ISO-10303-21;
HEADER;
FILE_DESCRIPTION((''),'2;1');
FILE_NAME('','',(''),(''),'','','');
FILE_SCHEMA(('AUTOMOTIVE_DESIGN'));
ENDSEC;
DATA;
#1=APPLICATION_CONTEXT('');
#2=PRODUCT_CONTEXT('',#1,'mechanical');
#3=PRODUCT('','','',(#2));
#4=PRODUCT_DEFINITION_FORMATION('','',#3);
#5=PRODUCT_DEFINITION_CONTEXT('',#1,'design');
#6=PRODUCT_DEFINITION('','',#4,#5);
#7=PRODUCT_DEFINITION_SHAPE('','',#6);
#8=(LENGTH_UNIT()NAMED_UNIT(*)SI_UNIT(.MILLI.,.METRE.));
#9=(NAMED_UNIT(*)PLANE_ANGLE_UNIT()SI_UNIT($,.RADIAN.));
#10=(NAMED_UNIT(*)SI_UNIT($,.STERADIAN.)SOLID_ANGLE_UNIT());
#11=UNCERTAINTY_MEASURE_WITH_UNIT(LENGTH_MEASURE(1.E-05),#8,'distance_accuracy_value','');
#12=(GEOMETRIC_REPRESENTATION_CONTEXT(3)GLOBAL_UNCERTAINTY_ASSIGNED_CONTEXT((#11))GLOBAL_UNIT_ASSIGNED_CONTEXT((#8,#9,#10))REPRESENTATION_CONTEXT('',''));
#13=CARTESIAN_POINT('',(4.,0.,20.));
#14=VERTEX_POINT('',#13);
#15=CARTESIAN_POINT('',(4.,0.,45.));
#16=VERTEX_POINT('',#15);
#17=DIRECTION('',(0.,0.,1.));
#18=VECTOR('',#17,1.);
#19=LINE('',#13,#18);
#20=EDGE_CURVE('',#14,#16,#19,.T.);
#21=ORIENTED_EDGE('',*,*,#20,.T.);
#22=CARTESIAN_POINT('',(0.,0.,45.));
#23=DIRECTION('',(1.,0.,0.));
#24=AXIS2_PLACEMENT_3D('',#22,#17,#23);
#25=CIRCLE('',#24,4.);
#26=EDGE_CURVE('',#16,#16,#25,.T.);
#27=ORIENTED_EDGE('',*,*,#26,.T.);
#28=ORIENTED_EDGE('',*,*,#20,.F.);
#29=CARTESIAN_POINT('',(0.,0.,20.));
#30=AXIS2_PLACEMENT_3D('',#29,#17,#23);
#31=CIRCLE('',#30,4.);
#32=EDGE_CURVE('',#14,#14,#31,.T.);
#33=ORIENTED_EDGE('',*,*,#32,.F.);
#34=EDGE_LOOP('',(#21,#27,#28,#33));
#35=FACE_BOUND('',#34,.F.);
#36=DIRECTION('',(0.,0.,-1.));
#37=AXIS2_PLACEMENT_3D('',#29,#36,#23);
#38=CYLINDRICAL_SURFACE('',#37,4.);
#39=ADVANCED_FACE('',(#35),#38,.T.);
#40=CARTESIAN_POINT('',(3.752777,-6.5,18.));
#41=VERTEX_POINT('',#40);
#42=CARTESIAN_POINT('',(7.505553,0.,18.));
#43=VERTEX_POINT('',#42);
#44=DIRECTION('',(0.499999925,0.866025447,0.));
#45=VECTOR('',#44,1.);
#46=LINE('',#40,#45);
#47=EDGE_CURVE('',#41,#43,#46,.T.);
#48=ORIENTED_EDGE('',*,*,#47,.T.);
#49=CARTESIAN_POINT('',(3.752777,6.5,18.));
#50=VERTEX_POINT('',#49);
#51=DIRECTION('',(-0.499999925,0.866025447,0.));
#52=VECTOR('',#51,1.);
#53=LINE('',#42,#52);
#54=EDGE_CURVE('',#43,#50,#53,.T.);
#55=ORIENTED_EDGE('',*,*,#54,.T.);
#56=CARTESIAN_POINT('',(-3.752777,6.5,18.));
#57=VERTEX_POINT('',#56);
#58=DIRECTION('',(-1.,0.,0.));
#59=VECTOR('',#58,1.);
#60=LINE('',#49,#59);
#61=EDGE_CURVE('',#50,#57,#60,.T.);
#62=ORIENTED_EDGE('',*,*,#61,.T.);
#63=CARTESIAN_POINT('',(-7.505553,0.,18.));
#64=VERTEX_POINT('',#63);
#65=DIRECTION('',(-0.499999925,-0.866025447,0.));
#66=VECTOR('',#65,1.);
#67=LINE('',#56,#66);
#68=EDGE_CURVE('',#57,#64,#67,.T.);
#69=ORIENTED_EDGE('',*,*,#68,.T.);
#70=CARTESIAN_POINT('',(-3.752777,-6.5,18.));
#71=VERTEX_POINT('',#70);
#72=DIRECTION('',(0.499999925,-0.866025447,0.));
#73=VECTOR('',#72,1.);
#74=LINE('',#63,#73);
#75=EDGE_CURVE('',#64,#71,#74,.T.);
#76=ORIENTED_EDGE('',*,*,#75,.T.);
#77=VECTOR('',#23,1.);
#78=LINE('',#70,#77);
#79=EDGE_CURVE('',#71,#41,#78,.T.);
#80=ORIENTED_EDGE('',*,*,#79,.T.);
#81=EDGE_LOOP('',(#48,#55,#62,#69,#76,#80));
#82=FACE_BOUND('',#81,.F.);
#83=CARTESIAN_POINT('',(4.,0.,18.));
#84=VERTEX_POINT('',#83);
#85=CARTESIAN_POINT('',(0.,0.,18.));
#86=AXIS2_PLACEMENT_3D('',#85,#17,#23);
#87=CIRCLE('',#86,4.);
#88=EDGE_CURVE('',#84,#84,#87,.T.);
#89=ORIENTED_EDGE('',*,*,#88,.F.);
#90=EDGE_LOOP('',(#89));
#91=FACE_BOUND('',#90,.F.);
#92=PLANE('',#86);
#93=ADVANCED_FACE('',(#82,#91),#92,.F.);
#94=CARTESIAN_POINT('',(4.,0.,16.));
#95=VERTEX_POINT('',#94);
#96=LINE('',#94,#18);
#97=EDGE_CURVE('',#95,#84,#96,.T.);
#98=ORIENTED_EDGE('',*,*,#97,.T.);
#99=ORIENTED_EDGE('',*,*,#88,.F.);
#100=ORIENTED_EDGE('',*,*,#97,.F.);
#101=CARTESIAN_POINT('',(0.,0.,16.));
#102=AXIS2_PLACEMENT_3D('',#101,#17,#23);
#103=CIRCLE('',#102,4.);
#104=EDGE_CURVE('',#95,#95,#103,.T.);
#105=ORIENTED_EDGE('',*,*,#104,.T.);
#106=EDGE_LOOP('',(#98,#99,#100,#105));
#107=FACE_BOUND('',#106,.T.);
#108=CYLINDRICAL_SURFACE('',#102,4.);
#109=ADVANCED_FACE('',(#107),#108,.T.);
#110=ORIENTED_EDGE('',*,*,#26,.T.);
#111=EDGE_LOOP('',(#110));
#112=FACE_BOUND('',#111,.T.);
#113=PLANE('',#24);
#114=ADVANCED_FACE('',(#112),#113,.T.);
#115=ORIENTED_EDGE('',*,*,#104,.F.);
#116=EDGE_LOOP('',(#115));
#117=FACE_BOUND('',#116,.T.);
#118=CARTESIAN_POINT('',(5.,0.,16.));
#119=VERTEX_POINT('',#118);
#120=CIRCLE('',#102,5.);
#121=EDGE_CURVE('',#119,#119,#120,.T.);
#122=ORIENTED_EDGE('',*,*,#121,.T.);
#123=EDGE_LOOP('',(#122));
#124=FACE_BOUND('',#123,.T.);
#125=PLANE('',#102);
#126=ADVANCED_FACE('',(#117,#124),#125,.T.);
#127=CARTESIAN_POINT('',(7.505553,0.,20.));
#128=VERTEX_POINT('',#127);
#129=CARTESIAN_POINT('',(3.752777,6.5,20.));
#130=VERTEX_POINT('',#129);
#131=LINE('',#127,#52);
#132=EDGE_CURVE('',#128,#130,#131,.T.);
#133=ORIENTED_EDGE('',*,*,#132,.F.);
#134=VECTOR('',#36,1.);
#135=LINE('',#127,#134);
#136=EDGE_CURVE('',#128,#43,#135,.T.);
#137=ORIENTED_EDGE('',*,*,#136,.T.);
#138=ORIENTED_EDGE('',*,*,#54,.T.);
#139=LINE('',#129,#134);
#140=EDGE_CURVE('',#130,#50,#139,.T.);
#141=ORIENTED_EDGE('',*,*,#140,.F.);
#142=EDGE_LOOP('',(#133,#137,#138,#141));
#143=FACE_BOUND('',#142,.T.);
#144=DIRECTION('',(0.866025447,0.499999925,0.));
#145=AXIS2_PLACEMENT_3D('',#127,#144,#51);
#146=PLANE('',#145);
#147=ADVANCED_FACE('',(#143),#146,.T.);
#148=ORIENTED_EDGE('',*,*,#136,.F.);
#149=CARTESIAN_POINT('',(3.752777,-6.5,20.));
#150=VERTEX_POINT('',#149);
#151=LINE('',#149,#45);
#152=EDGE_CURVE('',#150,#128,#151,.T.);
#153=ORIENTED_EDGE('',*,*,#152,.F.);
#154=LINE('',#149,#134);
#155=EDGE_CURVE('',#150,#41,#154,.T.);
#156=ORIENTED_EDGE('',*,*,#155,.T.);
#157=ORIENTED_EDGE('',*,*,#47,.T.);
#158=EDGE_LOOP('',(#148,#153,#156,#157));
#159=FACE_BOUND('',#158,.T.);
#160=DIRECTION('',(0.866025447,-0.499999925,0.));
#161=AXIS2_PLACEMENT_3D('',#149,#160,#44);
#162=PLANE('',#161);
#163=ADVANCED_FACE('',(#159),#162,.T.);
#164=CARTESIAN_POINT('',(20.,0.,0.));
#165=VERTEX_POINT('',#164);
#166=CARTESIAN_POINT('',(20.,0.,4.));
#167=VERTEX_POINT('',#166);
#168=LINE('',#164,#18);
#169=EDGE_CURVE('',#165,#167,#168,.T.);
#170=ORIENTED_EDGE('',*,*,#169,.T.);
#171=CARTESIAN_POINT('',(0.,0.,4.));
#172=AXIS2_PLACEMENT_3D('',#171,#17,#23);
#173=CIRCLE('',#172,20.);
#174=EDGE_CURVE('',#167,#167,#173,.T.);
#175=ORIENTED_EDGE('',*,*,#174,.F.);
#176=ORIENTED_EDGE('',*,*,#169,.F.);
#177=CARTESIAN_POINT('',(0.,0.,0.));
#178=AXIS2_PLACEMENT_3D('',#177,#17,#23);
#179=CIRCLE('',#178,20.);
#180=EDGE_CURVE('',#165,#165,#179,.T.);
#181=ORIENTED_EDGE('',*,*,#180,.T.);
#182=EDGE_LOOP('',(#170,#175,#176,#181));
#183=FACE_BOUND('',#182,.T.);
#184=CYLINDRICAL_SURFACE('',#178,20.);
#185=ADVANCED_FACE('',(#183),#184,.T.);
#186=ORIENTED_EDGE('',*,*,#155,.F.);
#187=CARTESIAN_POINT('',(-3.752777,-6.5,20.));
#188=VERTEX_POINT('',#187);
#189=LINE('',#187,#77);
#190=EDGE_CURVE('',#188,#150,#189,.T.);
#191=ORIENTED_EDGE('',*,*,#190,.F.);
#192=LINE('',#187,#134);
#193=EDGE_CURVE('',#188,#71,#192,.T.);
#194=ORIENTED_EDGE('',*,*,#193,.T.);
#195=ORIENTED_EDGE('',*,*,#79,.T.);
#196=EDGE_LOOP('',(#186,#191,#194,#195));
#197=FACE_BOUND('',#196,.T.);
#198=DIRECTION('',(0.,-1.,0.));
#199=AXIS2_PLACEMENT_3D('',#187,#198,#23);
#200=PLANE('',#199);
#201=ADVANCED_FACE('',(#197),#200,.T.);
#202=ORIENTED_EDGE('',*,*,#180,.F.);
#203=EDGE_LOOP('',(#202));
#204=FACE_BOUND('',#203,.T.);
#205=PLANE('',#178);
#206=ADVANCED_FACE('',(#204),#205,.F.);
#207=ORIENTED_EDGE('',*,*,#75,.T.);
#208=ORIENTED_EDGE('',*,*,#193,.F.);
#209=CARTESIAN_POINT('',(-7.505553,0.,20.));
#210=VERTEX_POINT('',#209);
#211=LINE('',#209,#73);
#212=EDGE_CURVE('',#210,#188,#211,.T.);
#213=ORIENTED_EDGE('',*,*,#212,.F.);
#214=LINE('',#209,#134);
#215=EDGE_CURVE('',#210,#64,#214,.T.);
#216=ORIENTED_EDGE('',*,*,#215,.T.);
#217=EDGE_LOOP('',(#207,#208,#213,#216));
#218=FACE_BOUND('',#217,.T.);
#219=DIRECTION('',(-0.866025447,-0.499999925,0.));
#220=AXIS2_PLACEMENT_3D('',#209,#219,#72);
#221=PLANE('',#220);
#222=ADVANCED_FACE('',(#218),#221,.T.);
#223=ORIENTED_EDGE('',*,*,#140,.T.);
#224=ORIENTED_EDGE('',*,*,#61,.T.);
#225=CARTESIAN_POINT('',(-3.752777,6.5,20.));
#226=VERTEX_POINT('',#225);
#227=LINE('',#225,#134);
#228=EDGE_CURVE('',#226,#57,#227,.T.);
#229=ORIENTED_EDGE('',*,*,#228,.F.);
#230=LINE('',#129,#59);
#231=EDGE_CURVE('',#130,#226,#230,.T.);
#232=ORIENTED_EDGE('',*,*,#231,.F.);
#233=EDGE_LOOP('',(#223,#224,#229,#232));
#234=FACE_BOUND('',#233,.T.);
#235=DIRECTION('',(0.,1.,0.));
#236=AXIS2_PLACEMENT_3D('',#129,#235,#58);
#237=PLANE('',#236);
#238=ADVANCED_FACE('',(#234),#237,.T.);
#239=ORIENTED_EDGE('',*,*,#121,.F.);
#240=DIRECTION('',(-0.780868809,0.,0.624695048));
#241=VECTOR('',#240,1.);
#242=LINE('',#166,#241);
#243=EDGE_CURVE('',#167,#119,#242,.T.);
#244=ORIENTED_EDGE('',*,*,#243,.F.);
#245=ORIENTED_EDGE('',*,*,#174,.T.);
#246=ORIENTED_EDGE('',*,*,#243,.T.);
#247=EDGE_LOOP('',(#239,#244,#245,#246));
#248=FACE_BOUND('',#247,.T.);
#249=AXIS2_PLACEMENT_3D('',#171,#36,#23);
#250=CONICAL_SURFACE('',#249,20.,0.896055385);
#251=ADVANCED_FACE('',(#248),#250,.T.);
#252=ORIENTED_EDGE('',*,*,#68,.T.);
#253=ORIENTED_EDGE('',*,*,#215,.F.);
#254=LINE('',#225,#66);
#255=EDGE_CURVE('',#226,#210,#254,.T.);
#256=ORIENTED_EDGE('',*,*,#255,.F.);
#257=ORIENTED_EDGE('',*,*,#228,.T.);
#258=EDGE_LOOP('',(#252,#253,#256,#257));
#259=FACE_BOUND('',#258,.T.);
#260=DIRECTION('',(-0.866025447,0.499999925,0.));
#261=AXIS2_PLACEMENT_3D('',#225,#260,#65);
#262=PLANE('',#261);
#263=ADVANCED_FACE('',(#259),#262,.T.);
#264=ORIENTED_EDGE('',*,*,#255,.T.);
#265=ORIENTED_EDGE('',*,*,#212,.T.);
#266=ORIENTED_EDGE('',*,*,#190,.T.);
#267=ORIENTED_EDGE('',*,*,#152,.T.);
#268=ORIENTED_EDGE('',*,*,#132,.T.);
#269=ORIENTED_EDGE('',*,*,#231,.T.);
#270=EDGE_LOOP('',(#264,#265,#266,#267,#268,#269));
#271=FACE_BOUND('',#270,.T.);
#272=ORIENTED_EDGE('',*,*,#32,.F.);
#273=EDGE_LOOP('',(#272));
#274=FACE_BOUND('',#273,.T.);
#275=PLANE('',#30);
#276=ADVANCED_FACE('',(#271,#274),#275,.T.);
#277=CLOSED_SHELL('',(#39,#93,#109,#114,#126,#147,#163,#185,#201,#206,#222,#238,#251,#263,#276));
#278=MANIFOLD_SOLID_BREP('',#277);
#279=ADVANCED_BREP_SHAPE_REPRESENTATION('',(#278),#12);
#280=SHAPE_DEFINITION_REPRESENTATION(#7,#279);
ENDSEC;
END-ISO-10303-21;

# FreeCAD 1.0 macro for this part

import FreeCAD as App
import Part
import Sketcher
Q = App.Units.Quantity

doc = App.newDocument("Part")
body = doc.addObject("PartDesign::Body", "Body")

sketch1 = body.newObject("Sketcher::SketchObject", "Sketch")
sketch1.AttachmentSupport = (doc.getObject("XZ_Plane"), [""])
sketch1.MapMode = "FlatFace"
sketch1.addGeometry(Part.LineSegment(App.Vector(0, 0, 0), App.Vector(20, 0, 0)), False)
sketch1.addGeometry(Part.LineSegment(App.Vector(20, 0, 0), App.Vector(20, 4, 0)), False)
sketch1.addGeometry(Part.LineSegment(App.Vector(20, 4, 0), App.Vector(5, 16, 0)), False)
sketch1.addGeometry(Part.LineSegment(App.Vector(5, 16, 0), App.Vector(4, 16, 0)), False)
sketch1.addGeometry(Part.LineSegment(App.Vector(4, 16, 0), App.Vector(4, 18, 0)), False)
sketch1.addGeometry(Part.LineSegment(App.Vector(4, 18, 0), App.Vector(0, 18, 0)), False)
sketch1.addGeometry(Part.LineSegment(App.Vector(0, 18, 0), App.Vector(0, 0, 0)), False)
sketch1.addConstraint(Sketcher.Constraint("Coincident", 0, 2, 1, 1))
sketch1.addConstraint(Sketcher.Constraint("Coincident", 1, 2, 2, 1))
sketch1.addConstraint(Sketcher.Constraint("Coincident", 2, 2, 3, 1))
sketch1.addConstraint(Sketcher.Constraint("Coincident", 3, 2, 4, 1))
sketch1.addConstraint(Sketcher.Constraint("Coincident", 4, 2, 5, 1))
sketch1.addConstraint(Sketcher.Constraint("Coincident", 5, 2, 6, 1))
sketch1.addConstraint(Sketcher.Constraint("Coincident", 6, 2, 0, 1))
sketch1.addConstraint(Sketcher.Constraint("Horizontal", 0))
sketch1.addConstraint(Sketcher.Constraint("Vertical", 1))
sketch1.addConstraint(Sketcher.Constraint("Horizontal", 3))
sketch1.addConstraint(Sketcher.Constraint("Vertical", 4))
sketch1.addConstraint(Sketcher.Constraint("Horizontal", 5))
sketch1.addConstraint(Sketcher.Constraint("Vertical", 6))
sketch1.addConstraint(Sketcher.Constraint("Coincident", 6, 2, -1, 1))
sketch1.addConstraint(Sketcher.Constraint("Equal", 5, 1))
sketch1.addConstraint(Sketcher.Constraint("DistanceX", 0, 1, 0, 2, 20.0))
sketch1.addConstraint(Sketcher.Constraint("DistanceX", 3, 2, 3, 1, 1.0))
sketch1.addConstraint(Sketcher.Constraint("DistanceX", 5, 2, 5, 1, 4.0))
sketch1.addConstraint(Sketcher.Constraint("DistanceY", 4, 1, 4, 2, 2.0))
sketch1.addConstraint(Sketcher.Constraint("DistanceY", 6, 2, 6, 1, 18.0))
revolution = body.newObject("PartDesign::Revolution", "Revolution")
revolution.Profile = sketch1
revolution.ReferenceAxis = (sketch1, ["V_Axis"])
revolution.Angle = 360

sketch2 = body.newObject("Sketcher::SketchObject", "Sketch001")
sketch2.AttachmentSupport = (doc.getObject("XY_Plane"), [""])
sketch2.MapMode = "FlatFace"
sketch2.AttachmentOffset = App.Placement(App.Vector(0, 0, 20), App.Rotation())
sketch2.addGeometry(Part.LineSegment(App.Vector(-4, 6, 0), App.Vector(-8, 0, 0)), False)
sketch2.addGeometry(Part.LineSegment(App.Vector(-8, 0, 0), App.Vector(-4, -6, 0)), False)
sketch2.addGeometry(Part.LineSegment(App.Vector(-4, -6, 0), App.Vector(4, -6, 0)), False)
sketch2.addGeometry(Part.LineSegment(App.Vector(4, -6, 0), App.Vector(8, 0, 0)), False)
sketch2.addGeometry(Part.LineSegment(App.Vector(8, 0, 0), App.Vector(4, 6, 0)), False)
sketch2.addGeometry(Part.LineSegment(App.Vector(4, 6, 0), App.Vector(-4, 6, 0)), False)
sketch2.addConstraint(Sketcher.Constraint("Coincident", 0, 2, 1, 1))
sketch2.addConstraint(Sketcher.Constraint("Coincident", 1, 2, 2, 1))
sketch2.addConstraint(Sketcher.Constraint("Coincident", 2, 2, 3, 1))
sketch2.addConstraint(Sketcher.Constraint("Coincident", 3, 2, 4, 1))
sketch2.addConstraint(Sketcher.Constraint("Coincident", 4, 2, 5, 1))
sketch2.addConstraint(Sketcher.Constraint("Coincident", 5, 2, 0, 1))
sketch2.addConstraint(Sketcher.Constraint("Horizontal", 2))
sketch2.addConstraint(Sketcher.Constraint("Horizontal", 5))
sketch2.addConstraint(Sketcher.Constraint("Symmetric", 0, 2, 3, 2, -1, 1))
sketch2.addConstraint(Sketcher.Constraint("Symmetric", 1, 2, 4, 2, -1, 1))
sketch2.addConstraint(Sketcher.Constraint("PointOnObject", 0, 2, -1))
sketch2.addConstraint(Sketcher.Constraint("Parallel", 0, 3))
sketch2.addConstraint(Sketcher.Constraint("Vertical", 2, 2, 4, 2))
sketch2.addConstraint(Sketcher.Constraint("Angle", 0, Q("-119.999995 deg")))
sketch2.addConstraint(Sketcher.Constraint("DistanceY", 2, 2, 4, 2, 13.0))
sketch2.addConstraint(Sketcher.Constraint("DistanceX", 2, 1, 2, 2, 7.505554))
pad1 = body.newObject("PartDesign::Pad", "Pad")
pad1.Profile = sketch2
pad1.Length = 2
pad1.Reversed = True

sketch3 = body.newObject("Sketcher::SketchObject", "Sketch002")
sketch3.AttachmentSupport = (doc.getObject("XY_Plane"), [""])
sketch3.MapMode = "FlatFace"
sketch3.AttachmentOffset = App.Placement(App.Vector(0, 0, 20), App.Rotation())
sketch3.addGeometry(Part.Circle(App.Vector(0, 0, 0), App.Vector(0, 0, 1), 4), False)
sketch3.addConstraint(Sketcher.Constraint("Coincident", 0, 3, -1, 1))
sketch3.addConstraint(Sketcher.Constraint("Diameter", 0, 8.0))
pad2 = body.newObject("PartDesign::Pad", "Pad001")
pad2.Profile = sketch3
pad2.Length = 25

doc.recompute()
